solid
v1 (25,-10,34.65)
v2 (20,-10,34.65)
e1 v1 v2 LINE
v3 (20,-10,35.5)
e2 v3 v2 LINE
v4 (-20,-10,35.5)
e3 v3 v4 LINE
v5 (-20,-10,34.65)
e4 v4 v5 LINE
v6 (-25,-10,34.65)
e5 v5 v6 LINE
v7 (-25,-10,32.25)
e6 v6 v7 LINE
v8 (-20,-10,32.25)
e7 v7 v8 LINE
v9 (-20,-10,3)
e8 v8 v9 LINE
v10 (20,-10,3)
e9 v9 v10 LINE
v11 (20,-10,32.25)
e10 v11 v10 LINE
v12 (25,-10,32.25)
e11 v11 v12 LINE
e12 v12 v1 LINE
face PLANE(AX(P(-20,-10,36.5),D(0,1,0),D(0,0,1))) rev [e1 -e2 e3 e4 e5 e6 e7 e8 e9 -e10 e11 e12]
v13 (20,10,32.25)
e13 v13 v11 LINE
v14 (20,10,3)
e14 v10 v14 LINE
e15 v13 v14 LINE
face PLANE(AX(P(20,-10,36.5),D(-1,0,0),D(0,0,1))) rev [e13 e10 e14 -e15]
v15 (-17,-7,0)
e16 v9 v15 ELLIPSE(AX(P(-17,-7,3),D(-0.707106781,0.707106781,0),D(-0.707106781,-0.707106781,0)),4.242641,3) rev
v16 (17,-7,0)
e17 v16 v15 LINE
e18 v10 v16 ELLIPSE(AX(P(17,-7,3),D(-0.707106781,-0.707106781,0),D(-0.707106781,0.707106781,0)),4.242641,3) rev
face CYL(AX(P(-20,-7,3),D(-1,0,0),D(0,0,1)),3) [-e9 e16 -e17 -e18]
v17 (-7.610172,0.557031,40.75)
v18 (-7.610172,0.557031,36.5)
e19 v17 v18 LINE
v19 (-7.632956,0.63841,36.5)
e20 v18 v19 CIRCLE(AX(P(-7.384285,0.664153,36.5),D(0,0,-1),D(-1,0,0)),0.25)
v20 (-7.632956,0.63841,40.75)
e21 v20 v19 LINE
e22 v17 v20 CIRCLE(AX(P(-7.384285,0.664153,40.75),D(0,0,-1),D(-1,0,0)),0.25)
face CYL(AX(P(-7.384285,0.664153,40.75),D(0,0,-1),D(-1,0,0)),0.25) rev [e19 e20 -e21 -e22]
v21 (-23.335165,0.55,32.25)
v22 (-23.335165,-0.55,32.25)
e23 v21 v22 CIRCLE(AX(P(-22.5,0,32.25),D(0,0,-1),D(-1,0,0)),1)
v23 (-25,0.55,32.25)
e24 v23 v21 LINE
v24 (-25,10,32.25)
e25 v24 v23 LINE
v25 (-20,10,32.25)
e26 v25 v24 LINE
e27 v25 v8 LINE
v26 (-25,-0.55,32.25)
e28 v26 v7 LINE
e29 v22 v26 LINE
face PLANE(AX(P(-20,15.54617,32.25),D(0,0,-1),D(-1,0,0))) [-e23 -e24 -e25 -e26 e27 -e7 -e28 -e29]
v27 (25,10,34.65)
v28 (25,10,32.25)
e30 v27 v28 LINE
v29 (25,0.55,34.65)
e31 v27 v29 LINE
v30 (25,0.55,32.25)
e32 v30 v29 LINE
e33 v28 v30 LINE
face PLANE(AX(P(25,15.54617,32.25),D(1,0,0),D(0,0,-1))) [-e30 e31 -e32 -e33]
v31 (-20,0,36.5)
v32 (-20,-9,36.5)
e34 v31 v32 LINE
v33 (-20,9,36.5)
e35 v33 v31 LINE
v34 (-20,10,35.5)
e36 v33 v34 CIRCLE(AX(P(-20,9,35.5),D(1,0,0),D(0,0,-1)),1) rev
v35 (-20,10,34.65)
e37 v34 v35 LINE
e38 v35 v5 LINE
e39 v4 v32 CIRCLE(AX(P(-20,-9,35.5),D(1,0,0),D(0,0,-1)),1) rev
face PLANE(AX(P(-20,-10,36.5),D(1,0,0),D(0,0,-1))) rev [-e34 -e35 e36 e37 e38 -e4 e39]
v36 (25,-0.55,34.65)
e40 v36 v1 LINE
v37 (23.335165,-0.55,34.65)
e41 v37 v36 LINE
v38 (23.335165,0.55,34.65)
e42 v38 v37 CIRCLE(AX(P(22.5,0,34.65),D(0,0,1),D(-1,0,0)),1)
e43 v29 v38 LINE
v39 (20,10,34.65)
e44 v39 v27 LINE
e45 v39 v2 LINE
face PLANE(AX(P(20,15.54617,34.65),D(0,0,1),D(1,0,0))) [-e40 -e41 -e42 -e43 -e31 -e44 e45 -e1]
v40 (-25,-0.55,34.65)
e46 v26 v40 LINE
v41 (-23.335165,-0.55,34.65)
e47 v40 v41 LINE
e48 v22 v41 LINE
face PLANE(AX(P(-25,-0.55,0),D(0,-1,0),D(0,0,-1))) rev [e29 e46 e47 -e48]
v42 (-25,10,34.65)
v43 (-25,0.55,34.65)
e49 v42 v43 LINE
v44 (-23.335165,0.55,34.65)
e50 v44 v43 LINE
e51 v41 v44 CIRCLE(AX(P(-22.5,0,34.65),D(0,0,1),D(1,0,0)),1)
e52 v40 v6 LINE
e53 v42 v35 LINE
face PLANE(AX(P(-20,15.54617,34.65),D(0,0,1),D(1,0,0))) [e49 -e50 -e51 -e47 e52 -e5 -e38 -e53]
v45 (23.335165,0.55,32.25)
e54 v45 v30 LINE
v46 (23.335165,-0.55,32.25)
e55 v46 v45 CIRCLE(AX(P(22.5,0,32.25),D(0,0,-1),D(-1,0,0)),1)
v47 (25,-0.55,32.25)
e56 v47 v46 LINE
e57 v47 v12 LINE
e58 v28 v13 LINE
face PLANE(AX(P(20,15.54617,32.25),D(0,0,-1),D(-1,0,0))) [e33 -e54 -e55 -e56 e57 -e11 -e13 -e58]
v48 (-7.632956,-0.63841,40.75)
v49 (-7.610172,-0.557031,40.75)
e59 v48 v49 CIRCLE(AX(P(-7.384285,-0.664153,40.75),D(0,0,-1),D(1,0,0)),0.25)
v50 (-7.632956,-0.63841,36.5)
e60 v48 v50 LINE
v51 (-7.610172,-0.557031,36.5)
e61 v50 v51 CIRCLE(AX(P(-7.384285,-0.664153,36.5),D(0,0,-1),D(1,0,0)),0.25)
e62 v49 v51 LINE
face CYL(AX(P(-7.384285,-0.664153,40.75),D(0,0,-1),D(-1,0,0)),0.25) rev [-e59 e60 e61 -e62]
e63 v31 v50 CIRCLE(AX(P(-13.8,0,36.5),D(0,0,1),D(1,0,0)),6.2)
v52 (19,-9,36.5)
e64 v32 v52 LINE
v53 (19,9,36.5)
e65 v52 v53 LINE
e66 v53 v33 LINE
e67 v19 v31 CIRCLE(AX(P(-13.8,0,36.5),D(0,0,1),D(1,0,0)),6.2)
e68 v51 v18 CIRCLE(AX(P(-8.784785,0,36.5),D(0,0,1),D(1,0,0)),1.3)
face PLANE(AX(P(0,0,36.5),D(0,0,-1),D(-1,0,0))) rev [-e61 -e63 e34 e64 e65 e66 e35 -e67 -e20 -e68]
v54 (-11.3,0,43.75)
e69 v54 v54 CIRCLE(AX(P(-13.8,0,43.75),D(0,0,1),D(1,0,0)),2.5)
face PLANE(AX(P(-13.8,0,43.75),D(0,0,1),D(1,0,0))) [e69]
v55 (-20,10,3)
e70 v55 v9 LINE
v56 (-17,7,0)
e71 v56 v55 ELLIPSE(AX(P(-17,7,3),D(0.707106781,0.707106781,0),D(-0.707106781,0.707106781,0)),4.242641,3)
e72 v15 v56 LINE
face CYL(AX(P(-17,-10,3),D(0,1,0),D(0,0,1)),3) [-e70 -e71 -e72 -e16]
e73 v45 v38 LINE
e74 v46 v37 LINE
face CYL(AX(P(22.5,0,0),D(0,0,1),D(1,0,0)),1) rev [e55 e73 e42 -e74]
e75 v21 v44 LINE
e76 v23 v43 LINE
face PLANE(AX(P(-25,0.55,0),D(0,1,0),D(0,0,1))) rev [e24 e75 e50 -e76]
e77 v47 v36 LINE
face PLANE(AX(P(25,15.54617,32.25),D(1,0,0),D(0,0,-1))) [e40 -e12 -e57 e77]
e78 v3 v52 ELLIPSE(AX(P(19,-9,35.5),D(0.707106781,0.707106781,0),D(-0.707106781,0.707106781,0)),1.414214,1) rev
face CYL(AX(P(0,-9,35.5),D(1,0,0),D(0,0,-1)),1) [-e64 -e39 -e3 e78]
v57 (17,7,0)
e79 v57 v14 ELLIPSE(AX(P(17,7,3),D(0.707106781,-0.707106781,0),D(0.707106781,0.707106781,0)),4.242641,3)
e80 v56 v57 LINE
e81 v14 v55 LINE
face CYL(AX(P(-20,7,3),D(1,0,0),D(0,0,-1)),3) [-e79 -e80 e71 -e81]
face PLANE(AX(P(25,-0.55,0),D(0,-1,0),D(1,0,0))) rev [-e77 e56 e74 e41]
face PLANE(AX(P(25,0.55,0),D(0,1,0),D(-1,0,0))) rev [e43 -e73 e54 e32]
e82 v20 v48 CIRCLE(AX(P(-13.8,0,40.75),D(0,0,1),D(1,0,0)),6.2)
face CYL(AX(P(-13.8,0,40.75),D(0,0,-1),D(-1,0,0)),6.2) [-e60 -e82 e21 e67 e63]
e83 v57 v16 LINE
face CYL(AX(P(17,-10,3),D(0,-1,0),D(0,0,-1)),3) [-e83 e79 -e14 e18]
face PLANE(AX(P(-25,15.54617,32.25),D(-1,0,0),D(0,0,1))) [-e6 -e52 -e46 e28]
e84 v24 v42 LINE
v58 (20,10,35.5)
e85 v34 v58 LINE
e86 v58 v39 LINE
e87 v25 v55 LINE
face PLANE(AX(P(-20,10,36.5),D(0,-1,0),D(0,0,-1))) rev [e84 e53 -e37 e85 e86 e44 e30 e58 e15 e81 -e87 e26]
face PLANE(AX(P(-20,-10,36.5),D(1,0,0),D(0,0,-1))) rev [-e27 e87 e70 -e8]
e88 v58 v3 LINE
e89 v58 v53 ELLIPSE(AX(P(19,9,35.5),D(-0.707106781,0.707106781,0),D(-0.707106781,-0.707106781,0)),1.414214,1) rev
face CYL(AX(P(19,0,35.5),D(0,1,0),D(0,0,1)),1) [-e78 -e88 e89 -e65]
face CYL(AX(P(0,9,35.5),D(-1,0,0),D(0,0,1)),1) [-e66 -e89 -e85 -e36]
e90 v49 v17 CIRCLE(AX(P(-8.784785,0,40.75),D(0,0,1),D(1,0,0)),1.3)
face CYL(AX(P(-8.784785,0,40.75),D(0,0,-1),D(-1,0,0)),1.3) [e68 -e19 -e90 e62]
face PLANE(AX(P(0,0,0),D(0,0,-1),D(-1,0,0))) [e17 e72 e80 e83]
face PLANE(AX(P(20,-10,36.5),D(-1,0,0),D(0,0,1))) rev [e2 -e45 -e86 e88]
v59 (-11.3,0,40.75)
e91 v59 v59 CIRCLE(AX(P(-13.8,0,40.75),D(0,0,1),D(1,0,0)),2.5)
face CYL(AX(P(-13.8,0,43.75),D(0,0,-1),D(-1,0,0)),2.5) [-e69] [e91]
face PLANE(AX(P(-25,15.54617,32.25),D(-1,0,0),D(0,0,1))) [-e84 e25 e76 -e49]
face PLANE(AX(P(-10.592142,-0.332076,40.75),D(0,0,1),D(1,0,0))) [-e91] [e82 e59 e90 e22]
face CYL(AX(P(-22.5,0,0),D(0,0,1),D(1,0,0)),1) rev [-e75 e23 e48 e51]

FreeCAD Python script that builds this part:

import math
import FreeCAD as App
import Part
import Sketcher
from FreeCAD import Vector


def edges_at(feature, points):
    """Names of the edges that pass closest to the given points."""
    edges = feature.Shape.Edges
    near = lambda p: min(range(len(edges)), key=lambda i: edges[i].distToShape(Part.Vertex(*p))[0])
    return sorted({f"Edge{near(p) + 1}" for p in points})

doc = App.newDocument("Part")
body = doc.addObject("PartDesign::Body", "Body")

sketch1 = body.newObject("Sketcher::SketchObject", "Sketch")
sketch1.AttachmentSupport = (doc.getObject("XY_Plane"), [""])
sketch1.MapMode = "FlatFace"
sketch1.addGeometry(Part.LineSegment(Vector(-20, 10, 0), Vector(-20, -10, 0)), False)
sketch1.addGeometry(Part.LineSegment(Vector(-20, -10, 0), Vector(20, -10, 0)), False)
sketch1.addGeometry(Part.LineSegment(Vector(20, -10, 0), Vector(20, 10, 0)), False)
sketch1.addGeometry(Part.LineSegment(Vector(20, 10, 0), Vector(-20, 10, 0)), False)
sketch1.addConstraint(Sketcher.Constraint("Coincident", 0, 2, 1, 1))
sketch1.addConstraint(Sketcher.Constraint("Coincident", 1, 2, 2, 1))
sketch1.addConstraint(Sketcher.Constraint("Coincident", 2, 2, 3, 1))
sketch1.addConstraint(Sketcher.Constraint("Coincident", 3, 2, 0, 1))
sketch1.addConstraint(Sketcher.Constraint("Vertical", 0))
sketch1.addConstraint(Sketcher.Constraint("Horizontal", 1))
sketch1.addConstraint(Sketcher.Constraint("Vertical", 2))
sketch1.addConstraint(Sketcher.Constraint("Horizontal", 3))
sketch1.addConstraint(Sketcher.Constraint("Symmetric", 0, 2, 2, 2, -1, 1))
sketch1.addConstraint(Sketcher.Constraint("DistanceX", 1, 1, 1, 2, 40.0))
sketch1.addConstraint(Sketcher.Constraint("DistanceY", 0, 2, 0, 1, 20.0))
pad1 = body.newObject("PartDesign::Pad", "Pad")
pad1.Profile = sketch1
pad1.Length = 36.5

sketch2 = body.newObject("Sketcher::SketchObject", "Sketch001")
sketch2.AttachmentSupport = (doc.getObject("XZ_Plane"), [""])
sketch2.MapMode = "FlatFace"
sketch2.AttachmentOffset = App.Placement(Vector(0, 0, 10), App.Rotation())
sketch2.addGeometry(Part.LineSegment(Vector(20, 34.6, 0), Vector(20, 32.2, 0)), False)
sketch2.addGeometry(Part.LineSegment(Vector(20, 32.2, 0), Vector(25, 32.2, 0)), False)
sketch2.addGeometry(Part.LineSegment(Vector(25, 32.2, 0), Vector(25, 34.6, 0)), False)
sketch2.addGeometry(Part.LineSegment(Vector(25, 34.6, 0), Vector(20, 34.6, 0)), False)
sketch2.addGeometry(Part.LineSegment(Vector(-25, 34.6, 0), Vector(-25, 32.2, 0)), False)
sketch2.addGeometry(Part.LineSegment(Vector(-25, 32.2, 0), Vector(-20, 32.2, 0)), False)
sketch2.addGeometry(Part.LineSegment(Vector(-20, 32.2, 0), Vector(-20, 34.6, 0)), False)
sketch2.addGeometry(Part.LineSegment(Vector(-20, 34.6, 0), Vector(-25, 34.6, 0)), False)
sketch2.addConstraint(Sketcher.Constraint("Coincident", 0, 2, 1, 1))
sketch2.addConstraint(Sketcher.Constraint("Coincident", 1, 2, 2, 1))
sketch2.addConstraint(Sketcher.Constraint("Coincident", 2, 2, 3, 1))
sketch2.addConstraint(Sketcher.Constraint("Coincident", 3, 2, 0, 1))
sketch2.addConstraint(Sketcher.Constraint("Coincident", 4, 2, 5, 1))
sketch2.addConstraint(Sketcher.Constraint("Coincident", 5, 2, 6, 1))
sketch2.addConstraint(Sketcher.Constraint("Coincident", 6, 2, 7, 1))
sketch2.addConstraint(Sketcher.Constraint("Coincident", 7, 2, 4, 1))
sketch2.addConstraint(Sketcher.Constraint("Vertical", 0))
sketch2.addConstraint(Sketcher.Constraint("Horizontal", 1))
sketch2.addConstraint(Sketcher.Constraint("Vertical", 2))
sketch2.addConstraint(Sketcher.Constraint("Horizontal", 3))
sketch2.addConstraint(Sketcher.Constraint("Vertical", 4))
sketch2.addConstraint(Sketcher.Constraint("Horizontal", 5))
sketch2.addConstraint(Sketcher.Constraint("Vertical", 6))
sketch2.addConstraint(Sketcher.Constraint("Horizontal", 7))
sketch2.addConstraint(Sketcher.Constraint("Symmetric", 1, 2, 4, 2, -2))
sketch2.addConstraint(Sketcher.Constraint("Symmetric", 3, 2, 6, 2, -2))
sketch2.addConstraint(Sketcher.Constraint("DistanceX", 1, 1, 1, 2, 5.0))
sketch2.addConstraint(Sketcher.Constraint("DistanceY", 0, 2, 0, 1, 2.4))
sketch2.addConstraint(Sketcher.Constraint("DistanceX", -1, 1, 0, 2, 20.0))
sketch2.addConstraint(Sketcher.Constraint("DistanceY", -1, 1, 0, 2, 32.25))
pad2 = body.newObject("PartDesign::Pad", "Pad001")
pad2.Profile = sketch2
pad2.Length = 20
pad2.Reversed = True

sketch3 = body.newObject("Sketcher::SketchObject", "Sketch002")
sketch3.AttachmentSupport = (doc.getObject("XY_Plane"), [""])
sketch3.MapMode = "FlatFace"
sketch3.AttachmentOffset = App.Placement(Vector(0, 0, 34.65), App.Rotation())
sketch3.addGeometry(Part.LineSegment(Vector(23.3, -0.6, 0), Vector(25, -0.6, 0)), False)
sketch3.addGeometry(Part.LineSegment(Vector(25, -0.6, 0), Vector(25, 0.6, 0)), False)
sketch3.addGeometry(Part.LineSegment(Vector(25, 0.6, 0), Vector(23.3, 0.6, 0)), False)
sketch3.addGeometry(Part.ArcOfCircle(Part.Circle(Vector(22.5, 0, 0), Vector(0, 0, 1), 1), math.radians(33), math.radians(327)), False)
sketch3.addGeometry(Part.LineSegment(Vector(-23.3, 0.6, 0), Vector(-25, 0.6, 0)), False)
sketch3.addGeometry(Part.LineSegment(Vector(-25, 0.6, 0), Vector(-25, -0.6, 0)), False)
sketch3.addGeometry(Part.LineSegment(Vector(-25, -0.6, 0), Vector(-23.3, -0.6, 0)), False)
sketch3.addGeometry(Part.ArcOfCircle(Part.Circle(Vector(-22.5, 0, 0), Vector(0, 0, 1), 1), math.radians(-147), math.radians(147)), False)
sketch3.addConstraint(Sketcher.Constraint("Coincident", 0, 2, 1, 1))
sketch3.addConstraint(Sketcher.Constraint("Coincident", 1, 2, 2, 1))
sketch3.addConstraint(Sketcher.Constraint("Coincident", 2, 2, 3, 1))
sketch3.addConstraint(Sketcher.Constraint("Coincident", 3, 2, 0, 1))
sketch3.addConstraint(Sketcher.Constraint("Coincident", 4, 2, 5, 1))
sketch3.addConstraint(Sketcher.Constraint("Coincident", 5, 2, 6, 1))
sketch3.addConstraint(Sketcher.Constraint("Coincident", 6, 2, 7, 1))
sketch3.addConstraint(Sketcher.Constraint("Coincident", 7, 2, 4, 1))
sketch3.addConstraint(Sketcher.Constraint("Horizontal", 0))
sketch3.addConstraint(Sketcher.Constraint("Vertical", 1))
sketch3.addConstraint(Sketcher.Constraint("Horizontal", 2))
sketch3.addConstraint(Sketcher.Constraint("Horizontal", 4))
sketch3.addConstraint(Sketcher.Constraint("Vertical", 5))
sketch3.addConstraint(Sketcher.Constraint("Horizontal", 6))
sketch3.addConstraint(Sketcher.Constraint("Equal", 3, 7))
sketch3.addConstraint(Sketcher.Constraint("Symmetric", 3, 3, 7, 3, -1, 1))
sketch3.addConstraint(Sketcher.Constraint("Symmetric", 0, 2, 4, 2, -1, 1))
sketch3.addConstraint(Sketcher.Constraint("Symmetric", 3, 2, 6, 2, -2))
sketch3.addConstraint(Sketcher.Constraint("Horizontal", 2, 2, 4, 2))
sketch3.addConstraint(Sketcher.Constraint("Radius", 3, 1.0))
sketch3.addConstraint(Sketcher.Constraint("DistanceY", 1, 1, 1, 2, 1.1))
sketch3.addConstraint(Sketcher.Constraint("DistanceX", -1, 1, 0, 2, 25.0))
sketch3.addConstraint(Sketcher.Constraint("DistanceX", 7, 3, 3, 3, 45.0))
pocket1 = body.newObject("PartDesign::Pocket", "Pocket")
pocket1.Profile = sketch3
pocket1.Type = "ThroughAll"

sketch4 = body.newObject("Sketcher::SketchObject", "Sketch003")
sketch4.AttachmentSupport = (doc.getObject("XY_Plane"), [""])
sketch4.MapMode = "FlatFace"
sketch4.AttachmentOffset = App.Placement(Vector(0, 0, 36.5), App.Rotation())
sketch4.addGeometry(Part.ArcOfCircle(Part.Circle(Vector(-13.8, 0, 0), Vector(0, 0, 1), 6.2), math.radians(6), math.radians(354)), False)
sketch4.addGeometry(Part.ArcOfCircle(Part.Circle(Vector(-7.38, -0.66, 0), Vector(0, 0, 1), 0.25), math.radians(154.63), math.radians(174.09)), False)
sketch4.addGeometry(Part.ArcOfCircle(Part.Circle(Vector(-8.78, 0, 0), Vector(0, 0, 1), 1.3), math.radians(-25), math.radians(25)), False)
sketch4.addGeometry(Part.ArcOfCircle(Part.Circle(Vector(-7.38, 0.66, 0), Vector(0, 0, 1), 0.25), math.radians(-174.09), math.radians(-154.63)), False)
sketch4.addConstraint(Sketcher.Constraint("Tangent", 0, 2, 1, 2))
sketch4.addConstraint(Sketcher.Constraint("Tangent", 1, 1, 2, 1))
sketch4.addConstraint(Sketcher.Constraint("Tangent", 2, 2, 3, 2))
sketch4.addConstraint(Sketcher.Constraint("Tangent", 3, 1, 0, 1))
sketch4.addConstraint(Sketcher.Constraint("Equal", 1, 3))
sketch4.addConstraint(Sketcher.Constraint("Symmetric", 1, 3, 3, 3, -1))
sketch4.addConstraint(Sketcher.Constraint("Radius", 0, 6.2))
sketch4.addConstraint(Sketcher.Constraint("Radius", 2, 1.3))
sketch4.addConstraint(Sketcher.Constraint("Radius", 1, 0.25))
sketch4.addConstraint(Sketcher.Constraint("DistanceX", 0, 3, -1, 1, 13.8))
sketch4.addConstraint(Sketcher.Constraint("DistanceX", 2, 3, 1, 3, 1.4005))
pad3 = body.newObject("PartDesign::Pad", "Pad002")
pad3.Profile = sketch4
pad3.Length = 4.25

sketch5 = body.newObject("Sketcher::SketchObject", "Sketch004")
sketch5.AttachmentSupport = (doc.getObject("XY_Plane"), [""])
sketch5.MapMode = "FlatFace"
sketch5.AttachmentOffset = App.Placement(Vector(0, 0, 40.75), App.Rotation())
sketch5.addGeometry(Part.Circle(Vector(-13.8, 0, 0), Vector(0, 0, 1), 2.5), False)
sketch5.addConstraint(Sketcher.Constraint("PointOnObject", 0, 3, -1))
sketch5.addConstraint(Sketcher.Constraint("Diameter", 0, 5.0))
sketch5.addConstraint(Sketcher.Constraint("DistanceX", 0, 3, -1, 1, 13.8))
pad4 = body.newObject("PartDesign::Pad", "Pad003")
pad4.Profile = sketch5
pad4.Length = 3
doc.recompute()

fillet = body.newObject("PartDesign::Fillet", "Fillet")
fillet.Base = (pad4, edges_at(pad4, [
    (0, -10, 0),
    (-20, 0, 0),
    (0, 10, 0),
    (20, 0, 0),
]))
fillet.Radius = 3
doc.recompute()

fillet2 = body.newObject("PartDesign::Fillet", "Fillet001")
fillet2.Base = (fillet, edges_at(fillet, [(0, -10, 36.5), (20, 0, 36.5), (0, 10, 36.5)]))
fillet2.Radius = 1

doc.recompute()
